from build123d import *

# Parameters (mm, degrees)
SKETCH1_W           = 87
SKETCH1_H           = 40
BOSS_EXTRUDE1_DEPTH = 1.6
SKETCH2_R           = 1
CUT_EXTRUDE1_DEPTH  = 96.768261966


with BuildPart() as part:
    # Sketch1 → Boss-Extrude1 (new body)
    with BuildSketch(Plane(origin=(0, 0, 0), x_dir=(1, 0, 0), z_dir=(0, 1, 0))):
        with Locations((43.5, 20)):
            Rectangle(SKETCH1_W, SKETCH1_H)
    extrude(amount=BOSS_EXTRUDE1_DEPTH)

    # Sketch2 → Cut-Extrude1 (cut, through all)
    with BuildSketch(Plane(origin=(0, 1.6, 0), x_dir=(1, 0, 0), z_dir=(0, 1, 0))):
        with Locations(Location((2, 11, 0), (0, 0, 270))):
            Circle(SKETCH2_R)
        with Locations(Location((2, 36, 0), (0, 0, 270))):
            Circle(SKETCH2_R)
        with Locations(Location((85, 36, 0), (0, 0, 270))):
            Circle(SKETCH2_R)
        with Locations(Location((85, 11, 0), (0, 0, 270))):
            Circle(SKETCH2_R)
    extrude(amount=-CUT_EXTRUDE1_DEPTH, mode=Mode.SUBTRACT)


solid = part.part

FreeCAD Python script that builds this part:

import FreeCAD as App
import Part
import Sketcher
Q = App.Units.Quantity


def add_polygon(sketch, points):
    """Adds a closed chain of lines whose ends are joined by coincident constraints."""
    first, n = sketch.GeometryCount, len(points)
    for a, b in zip(points, points[1:] + points[:1]):
        sketch.addGeometry(Part.LineSegment(App.Vector(*a, 0), App.Vector(*b, 0)), False)
    for i in range(n):
        sketch.addConstraint(Sketcher.Constraint("Coincident", first + i, 2, first + (i + 1) % n, 1))

doc = App.newDocument("Part")
body = doc.addObject("PartDesign::Body", "Body")

sketch1 = body.newObject("Sketcher::SketchObject", "Sketch")
sketch1.AttachmentSupport = (doc.getObject("XZ_Plane"), [""])
sketch1.MapMode = "FlatFace"
add_polygon(sketch1, [(0, -40), (0, 0), (87, 0), (87, -40)])
sketch1.addConstraint([
    Sketcher.Constraint("Vertical", 0),
    Sketcher.Constraint("Horizontal", 1),
    Sketcher.Constraint("Vertical", 2),
    Sketcher.Constraint("Horizontal", 3),
    Sketcher.Constraint("Coincident", 0, 2, -1, 1),
    Sketcher.Constraint("DistanceX", 1, 1, 1, 2, Q("87 mm")),
    Sketcher.Constraint("DistanceY", 0, 1, 0, 2, Q("40 mm")),
])
pad1 = body.newObject("PartDesign::Pad", "Pad")
pad1.Profile = sketch1
pad1.Length = 1.6
pad1.Reversed = True

sketch2 = body.newObject("Sketcher::SketchObject", "Sketch001")
sketch2.AttachmentSupport = (doc.getObject("XZ_Plane"), [""])
sketch2.MapMode = "FlatFace"
sketch2.AttachmentOffset = App.Placement(App.Vector(0, 0, -1.6), App.Rotation())
sketch2.addGeometry([
    Part.Circle(App.Vector(2, -11, 0), App.Vector(0, 0, 1), 1),
    Part.Circle(App.Vector(2, -36, 0), App.Vector(0, 0, 1), 1),
    Part.Circle(App.Vector(85, -36, 0), App.Vector(0, 0, 1), 1),
    Part.Circle(App.Vector(85, -11, 0), App.Vector(0, 0, 1), 1),
], False)
sketch2.addConstraint([
    Sketcher.Constraint("Equal", 0, 1),
    Sketcher.Constraint("Equal", 1, 2),
    Sketcher.Constraint("Equal", 2, 3),
    Sketcher.Constraint("Horizontal", 1, 3, 2, 3),
    Sketcher.Constraint("Horizontal", 0, 3, 3, 3),
    Sketcher.Constraint("Vertical", 0, 3, 1, 3),
    Sketcher.Constraint("Vertical", 2, 3, 3, 3),
    Sketcher.Constraint("Diameter", 0, Q("2 mm")),
    Sketcher.Constraint("DistanceX", -1, 1, 0, 3, Q("2 mm")),
    Sketcher.Constraint("DistanceY", 0, 3, -1, 1, Q("11 mm")),
    Sketcher.Constraint("DistanceY", 1, 3, -1, 1, Q("36 mm")),
    Sketcher.Constraint("DistanceX", -1, 1, 2, 3, Q("85 mm")),
])
pocket1 = body.newObject("PartDesign::Pocket", "Pocket")
pocket1.Profile = sketch2
pocket1.Type = "ThroughAll"
pocket1.Reversed = True

doc.recompute()
